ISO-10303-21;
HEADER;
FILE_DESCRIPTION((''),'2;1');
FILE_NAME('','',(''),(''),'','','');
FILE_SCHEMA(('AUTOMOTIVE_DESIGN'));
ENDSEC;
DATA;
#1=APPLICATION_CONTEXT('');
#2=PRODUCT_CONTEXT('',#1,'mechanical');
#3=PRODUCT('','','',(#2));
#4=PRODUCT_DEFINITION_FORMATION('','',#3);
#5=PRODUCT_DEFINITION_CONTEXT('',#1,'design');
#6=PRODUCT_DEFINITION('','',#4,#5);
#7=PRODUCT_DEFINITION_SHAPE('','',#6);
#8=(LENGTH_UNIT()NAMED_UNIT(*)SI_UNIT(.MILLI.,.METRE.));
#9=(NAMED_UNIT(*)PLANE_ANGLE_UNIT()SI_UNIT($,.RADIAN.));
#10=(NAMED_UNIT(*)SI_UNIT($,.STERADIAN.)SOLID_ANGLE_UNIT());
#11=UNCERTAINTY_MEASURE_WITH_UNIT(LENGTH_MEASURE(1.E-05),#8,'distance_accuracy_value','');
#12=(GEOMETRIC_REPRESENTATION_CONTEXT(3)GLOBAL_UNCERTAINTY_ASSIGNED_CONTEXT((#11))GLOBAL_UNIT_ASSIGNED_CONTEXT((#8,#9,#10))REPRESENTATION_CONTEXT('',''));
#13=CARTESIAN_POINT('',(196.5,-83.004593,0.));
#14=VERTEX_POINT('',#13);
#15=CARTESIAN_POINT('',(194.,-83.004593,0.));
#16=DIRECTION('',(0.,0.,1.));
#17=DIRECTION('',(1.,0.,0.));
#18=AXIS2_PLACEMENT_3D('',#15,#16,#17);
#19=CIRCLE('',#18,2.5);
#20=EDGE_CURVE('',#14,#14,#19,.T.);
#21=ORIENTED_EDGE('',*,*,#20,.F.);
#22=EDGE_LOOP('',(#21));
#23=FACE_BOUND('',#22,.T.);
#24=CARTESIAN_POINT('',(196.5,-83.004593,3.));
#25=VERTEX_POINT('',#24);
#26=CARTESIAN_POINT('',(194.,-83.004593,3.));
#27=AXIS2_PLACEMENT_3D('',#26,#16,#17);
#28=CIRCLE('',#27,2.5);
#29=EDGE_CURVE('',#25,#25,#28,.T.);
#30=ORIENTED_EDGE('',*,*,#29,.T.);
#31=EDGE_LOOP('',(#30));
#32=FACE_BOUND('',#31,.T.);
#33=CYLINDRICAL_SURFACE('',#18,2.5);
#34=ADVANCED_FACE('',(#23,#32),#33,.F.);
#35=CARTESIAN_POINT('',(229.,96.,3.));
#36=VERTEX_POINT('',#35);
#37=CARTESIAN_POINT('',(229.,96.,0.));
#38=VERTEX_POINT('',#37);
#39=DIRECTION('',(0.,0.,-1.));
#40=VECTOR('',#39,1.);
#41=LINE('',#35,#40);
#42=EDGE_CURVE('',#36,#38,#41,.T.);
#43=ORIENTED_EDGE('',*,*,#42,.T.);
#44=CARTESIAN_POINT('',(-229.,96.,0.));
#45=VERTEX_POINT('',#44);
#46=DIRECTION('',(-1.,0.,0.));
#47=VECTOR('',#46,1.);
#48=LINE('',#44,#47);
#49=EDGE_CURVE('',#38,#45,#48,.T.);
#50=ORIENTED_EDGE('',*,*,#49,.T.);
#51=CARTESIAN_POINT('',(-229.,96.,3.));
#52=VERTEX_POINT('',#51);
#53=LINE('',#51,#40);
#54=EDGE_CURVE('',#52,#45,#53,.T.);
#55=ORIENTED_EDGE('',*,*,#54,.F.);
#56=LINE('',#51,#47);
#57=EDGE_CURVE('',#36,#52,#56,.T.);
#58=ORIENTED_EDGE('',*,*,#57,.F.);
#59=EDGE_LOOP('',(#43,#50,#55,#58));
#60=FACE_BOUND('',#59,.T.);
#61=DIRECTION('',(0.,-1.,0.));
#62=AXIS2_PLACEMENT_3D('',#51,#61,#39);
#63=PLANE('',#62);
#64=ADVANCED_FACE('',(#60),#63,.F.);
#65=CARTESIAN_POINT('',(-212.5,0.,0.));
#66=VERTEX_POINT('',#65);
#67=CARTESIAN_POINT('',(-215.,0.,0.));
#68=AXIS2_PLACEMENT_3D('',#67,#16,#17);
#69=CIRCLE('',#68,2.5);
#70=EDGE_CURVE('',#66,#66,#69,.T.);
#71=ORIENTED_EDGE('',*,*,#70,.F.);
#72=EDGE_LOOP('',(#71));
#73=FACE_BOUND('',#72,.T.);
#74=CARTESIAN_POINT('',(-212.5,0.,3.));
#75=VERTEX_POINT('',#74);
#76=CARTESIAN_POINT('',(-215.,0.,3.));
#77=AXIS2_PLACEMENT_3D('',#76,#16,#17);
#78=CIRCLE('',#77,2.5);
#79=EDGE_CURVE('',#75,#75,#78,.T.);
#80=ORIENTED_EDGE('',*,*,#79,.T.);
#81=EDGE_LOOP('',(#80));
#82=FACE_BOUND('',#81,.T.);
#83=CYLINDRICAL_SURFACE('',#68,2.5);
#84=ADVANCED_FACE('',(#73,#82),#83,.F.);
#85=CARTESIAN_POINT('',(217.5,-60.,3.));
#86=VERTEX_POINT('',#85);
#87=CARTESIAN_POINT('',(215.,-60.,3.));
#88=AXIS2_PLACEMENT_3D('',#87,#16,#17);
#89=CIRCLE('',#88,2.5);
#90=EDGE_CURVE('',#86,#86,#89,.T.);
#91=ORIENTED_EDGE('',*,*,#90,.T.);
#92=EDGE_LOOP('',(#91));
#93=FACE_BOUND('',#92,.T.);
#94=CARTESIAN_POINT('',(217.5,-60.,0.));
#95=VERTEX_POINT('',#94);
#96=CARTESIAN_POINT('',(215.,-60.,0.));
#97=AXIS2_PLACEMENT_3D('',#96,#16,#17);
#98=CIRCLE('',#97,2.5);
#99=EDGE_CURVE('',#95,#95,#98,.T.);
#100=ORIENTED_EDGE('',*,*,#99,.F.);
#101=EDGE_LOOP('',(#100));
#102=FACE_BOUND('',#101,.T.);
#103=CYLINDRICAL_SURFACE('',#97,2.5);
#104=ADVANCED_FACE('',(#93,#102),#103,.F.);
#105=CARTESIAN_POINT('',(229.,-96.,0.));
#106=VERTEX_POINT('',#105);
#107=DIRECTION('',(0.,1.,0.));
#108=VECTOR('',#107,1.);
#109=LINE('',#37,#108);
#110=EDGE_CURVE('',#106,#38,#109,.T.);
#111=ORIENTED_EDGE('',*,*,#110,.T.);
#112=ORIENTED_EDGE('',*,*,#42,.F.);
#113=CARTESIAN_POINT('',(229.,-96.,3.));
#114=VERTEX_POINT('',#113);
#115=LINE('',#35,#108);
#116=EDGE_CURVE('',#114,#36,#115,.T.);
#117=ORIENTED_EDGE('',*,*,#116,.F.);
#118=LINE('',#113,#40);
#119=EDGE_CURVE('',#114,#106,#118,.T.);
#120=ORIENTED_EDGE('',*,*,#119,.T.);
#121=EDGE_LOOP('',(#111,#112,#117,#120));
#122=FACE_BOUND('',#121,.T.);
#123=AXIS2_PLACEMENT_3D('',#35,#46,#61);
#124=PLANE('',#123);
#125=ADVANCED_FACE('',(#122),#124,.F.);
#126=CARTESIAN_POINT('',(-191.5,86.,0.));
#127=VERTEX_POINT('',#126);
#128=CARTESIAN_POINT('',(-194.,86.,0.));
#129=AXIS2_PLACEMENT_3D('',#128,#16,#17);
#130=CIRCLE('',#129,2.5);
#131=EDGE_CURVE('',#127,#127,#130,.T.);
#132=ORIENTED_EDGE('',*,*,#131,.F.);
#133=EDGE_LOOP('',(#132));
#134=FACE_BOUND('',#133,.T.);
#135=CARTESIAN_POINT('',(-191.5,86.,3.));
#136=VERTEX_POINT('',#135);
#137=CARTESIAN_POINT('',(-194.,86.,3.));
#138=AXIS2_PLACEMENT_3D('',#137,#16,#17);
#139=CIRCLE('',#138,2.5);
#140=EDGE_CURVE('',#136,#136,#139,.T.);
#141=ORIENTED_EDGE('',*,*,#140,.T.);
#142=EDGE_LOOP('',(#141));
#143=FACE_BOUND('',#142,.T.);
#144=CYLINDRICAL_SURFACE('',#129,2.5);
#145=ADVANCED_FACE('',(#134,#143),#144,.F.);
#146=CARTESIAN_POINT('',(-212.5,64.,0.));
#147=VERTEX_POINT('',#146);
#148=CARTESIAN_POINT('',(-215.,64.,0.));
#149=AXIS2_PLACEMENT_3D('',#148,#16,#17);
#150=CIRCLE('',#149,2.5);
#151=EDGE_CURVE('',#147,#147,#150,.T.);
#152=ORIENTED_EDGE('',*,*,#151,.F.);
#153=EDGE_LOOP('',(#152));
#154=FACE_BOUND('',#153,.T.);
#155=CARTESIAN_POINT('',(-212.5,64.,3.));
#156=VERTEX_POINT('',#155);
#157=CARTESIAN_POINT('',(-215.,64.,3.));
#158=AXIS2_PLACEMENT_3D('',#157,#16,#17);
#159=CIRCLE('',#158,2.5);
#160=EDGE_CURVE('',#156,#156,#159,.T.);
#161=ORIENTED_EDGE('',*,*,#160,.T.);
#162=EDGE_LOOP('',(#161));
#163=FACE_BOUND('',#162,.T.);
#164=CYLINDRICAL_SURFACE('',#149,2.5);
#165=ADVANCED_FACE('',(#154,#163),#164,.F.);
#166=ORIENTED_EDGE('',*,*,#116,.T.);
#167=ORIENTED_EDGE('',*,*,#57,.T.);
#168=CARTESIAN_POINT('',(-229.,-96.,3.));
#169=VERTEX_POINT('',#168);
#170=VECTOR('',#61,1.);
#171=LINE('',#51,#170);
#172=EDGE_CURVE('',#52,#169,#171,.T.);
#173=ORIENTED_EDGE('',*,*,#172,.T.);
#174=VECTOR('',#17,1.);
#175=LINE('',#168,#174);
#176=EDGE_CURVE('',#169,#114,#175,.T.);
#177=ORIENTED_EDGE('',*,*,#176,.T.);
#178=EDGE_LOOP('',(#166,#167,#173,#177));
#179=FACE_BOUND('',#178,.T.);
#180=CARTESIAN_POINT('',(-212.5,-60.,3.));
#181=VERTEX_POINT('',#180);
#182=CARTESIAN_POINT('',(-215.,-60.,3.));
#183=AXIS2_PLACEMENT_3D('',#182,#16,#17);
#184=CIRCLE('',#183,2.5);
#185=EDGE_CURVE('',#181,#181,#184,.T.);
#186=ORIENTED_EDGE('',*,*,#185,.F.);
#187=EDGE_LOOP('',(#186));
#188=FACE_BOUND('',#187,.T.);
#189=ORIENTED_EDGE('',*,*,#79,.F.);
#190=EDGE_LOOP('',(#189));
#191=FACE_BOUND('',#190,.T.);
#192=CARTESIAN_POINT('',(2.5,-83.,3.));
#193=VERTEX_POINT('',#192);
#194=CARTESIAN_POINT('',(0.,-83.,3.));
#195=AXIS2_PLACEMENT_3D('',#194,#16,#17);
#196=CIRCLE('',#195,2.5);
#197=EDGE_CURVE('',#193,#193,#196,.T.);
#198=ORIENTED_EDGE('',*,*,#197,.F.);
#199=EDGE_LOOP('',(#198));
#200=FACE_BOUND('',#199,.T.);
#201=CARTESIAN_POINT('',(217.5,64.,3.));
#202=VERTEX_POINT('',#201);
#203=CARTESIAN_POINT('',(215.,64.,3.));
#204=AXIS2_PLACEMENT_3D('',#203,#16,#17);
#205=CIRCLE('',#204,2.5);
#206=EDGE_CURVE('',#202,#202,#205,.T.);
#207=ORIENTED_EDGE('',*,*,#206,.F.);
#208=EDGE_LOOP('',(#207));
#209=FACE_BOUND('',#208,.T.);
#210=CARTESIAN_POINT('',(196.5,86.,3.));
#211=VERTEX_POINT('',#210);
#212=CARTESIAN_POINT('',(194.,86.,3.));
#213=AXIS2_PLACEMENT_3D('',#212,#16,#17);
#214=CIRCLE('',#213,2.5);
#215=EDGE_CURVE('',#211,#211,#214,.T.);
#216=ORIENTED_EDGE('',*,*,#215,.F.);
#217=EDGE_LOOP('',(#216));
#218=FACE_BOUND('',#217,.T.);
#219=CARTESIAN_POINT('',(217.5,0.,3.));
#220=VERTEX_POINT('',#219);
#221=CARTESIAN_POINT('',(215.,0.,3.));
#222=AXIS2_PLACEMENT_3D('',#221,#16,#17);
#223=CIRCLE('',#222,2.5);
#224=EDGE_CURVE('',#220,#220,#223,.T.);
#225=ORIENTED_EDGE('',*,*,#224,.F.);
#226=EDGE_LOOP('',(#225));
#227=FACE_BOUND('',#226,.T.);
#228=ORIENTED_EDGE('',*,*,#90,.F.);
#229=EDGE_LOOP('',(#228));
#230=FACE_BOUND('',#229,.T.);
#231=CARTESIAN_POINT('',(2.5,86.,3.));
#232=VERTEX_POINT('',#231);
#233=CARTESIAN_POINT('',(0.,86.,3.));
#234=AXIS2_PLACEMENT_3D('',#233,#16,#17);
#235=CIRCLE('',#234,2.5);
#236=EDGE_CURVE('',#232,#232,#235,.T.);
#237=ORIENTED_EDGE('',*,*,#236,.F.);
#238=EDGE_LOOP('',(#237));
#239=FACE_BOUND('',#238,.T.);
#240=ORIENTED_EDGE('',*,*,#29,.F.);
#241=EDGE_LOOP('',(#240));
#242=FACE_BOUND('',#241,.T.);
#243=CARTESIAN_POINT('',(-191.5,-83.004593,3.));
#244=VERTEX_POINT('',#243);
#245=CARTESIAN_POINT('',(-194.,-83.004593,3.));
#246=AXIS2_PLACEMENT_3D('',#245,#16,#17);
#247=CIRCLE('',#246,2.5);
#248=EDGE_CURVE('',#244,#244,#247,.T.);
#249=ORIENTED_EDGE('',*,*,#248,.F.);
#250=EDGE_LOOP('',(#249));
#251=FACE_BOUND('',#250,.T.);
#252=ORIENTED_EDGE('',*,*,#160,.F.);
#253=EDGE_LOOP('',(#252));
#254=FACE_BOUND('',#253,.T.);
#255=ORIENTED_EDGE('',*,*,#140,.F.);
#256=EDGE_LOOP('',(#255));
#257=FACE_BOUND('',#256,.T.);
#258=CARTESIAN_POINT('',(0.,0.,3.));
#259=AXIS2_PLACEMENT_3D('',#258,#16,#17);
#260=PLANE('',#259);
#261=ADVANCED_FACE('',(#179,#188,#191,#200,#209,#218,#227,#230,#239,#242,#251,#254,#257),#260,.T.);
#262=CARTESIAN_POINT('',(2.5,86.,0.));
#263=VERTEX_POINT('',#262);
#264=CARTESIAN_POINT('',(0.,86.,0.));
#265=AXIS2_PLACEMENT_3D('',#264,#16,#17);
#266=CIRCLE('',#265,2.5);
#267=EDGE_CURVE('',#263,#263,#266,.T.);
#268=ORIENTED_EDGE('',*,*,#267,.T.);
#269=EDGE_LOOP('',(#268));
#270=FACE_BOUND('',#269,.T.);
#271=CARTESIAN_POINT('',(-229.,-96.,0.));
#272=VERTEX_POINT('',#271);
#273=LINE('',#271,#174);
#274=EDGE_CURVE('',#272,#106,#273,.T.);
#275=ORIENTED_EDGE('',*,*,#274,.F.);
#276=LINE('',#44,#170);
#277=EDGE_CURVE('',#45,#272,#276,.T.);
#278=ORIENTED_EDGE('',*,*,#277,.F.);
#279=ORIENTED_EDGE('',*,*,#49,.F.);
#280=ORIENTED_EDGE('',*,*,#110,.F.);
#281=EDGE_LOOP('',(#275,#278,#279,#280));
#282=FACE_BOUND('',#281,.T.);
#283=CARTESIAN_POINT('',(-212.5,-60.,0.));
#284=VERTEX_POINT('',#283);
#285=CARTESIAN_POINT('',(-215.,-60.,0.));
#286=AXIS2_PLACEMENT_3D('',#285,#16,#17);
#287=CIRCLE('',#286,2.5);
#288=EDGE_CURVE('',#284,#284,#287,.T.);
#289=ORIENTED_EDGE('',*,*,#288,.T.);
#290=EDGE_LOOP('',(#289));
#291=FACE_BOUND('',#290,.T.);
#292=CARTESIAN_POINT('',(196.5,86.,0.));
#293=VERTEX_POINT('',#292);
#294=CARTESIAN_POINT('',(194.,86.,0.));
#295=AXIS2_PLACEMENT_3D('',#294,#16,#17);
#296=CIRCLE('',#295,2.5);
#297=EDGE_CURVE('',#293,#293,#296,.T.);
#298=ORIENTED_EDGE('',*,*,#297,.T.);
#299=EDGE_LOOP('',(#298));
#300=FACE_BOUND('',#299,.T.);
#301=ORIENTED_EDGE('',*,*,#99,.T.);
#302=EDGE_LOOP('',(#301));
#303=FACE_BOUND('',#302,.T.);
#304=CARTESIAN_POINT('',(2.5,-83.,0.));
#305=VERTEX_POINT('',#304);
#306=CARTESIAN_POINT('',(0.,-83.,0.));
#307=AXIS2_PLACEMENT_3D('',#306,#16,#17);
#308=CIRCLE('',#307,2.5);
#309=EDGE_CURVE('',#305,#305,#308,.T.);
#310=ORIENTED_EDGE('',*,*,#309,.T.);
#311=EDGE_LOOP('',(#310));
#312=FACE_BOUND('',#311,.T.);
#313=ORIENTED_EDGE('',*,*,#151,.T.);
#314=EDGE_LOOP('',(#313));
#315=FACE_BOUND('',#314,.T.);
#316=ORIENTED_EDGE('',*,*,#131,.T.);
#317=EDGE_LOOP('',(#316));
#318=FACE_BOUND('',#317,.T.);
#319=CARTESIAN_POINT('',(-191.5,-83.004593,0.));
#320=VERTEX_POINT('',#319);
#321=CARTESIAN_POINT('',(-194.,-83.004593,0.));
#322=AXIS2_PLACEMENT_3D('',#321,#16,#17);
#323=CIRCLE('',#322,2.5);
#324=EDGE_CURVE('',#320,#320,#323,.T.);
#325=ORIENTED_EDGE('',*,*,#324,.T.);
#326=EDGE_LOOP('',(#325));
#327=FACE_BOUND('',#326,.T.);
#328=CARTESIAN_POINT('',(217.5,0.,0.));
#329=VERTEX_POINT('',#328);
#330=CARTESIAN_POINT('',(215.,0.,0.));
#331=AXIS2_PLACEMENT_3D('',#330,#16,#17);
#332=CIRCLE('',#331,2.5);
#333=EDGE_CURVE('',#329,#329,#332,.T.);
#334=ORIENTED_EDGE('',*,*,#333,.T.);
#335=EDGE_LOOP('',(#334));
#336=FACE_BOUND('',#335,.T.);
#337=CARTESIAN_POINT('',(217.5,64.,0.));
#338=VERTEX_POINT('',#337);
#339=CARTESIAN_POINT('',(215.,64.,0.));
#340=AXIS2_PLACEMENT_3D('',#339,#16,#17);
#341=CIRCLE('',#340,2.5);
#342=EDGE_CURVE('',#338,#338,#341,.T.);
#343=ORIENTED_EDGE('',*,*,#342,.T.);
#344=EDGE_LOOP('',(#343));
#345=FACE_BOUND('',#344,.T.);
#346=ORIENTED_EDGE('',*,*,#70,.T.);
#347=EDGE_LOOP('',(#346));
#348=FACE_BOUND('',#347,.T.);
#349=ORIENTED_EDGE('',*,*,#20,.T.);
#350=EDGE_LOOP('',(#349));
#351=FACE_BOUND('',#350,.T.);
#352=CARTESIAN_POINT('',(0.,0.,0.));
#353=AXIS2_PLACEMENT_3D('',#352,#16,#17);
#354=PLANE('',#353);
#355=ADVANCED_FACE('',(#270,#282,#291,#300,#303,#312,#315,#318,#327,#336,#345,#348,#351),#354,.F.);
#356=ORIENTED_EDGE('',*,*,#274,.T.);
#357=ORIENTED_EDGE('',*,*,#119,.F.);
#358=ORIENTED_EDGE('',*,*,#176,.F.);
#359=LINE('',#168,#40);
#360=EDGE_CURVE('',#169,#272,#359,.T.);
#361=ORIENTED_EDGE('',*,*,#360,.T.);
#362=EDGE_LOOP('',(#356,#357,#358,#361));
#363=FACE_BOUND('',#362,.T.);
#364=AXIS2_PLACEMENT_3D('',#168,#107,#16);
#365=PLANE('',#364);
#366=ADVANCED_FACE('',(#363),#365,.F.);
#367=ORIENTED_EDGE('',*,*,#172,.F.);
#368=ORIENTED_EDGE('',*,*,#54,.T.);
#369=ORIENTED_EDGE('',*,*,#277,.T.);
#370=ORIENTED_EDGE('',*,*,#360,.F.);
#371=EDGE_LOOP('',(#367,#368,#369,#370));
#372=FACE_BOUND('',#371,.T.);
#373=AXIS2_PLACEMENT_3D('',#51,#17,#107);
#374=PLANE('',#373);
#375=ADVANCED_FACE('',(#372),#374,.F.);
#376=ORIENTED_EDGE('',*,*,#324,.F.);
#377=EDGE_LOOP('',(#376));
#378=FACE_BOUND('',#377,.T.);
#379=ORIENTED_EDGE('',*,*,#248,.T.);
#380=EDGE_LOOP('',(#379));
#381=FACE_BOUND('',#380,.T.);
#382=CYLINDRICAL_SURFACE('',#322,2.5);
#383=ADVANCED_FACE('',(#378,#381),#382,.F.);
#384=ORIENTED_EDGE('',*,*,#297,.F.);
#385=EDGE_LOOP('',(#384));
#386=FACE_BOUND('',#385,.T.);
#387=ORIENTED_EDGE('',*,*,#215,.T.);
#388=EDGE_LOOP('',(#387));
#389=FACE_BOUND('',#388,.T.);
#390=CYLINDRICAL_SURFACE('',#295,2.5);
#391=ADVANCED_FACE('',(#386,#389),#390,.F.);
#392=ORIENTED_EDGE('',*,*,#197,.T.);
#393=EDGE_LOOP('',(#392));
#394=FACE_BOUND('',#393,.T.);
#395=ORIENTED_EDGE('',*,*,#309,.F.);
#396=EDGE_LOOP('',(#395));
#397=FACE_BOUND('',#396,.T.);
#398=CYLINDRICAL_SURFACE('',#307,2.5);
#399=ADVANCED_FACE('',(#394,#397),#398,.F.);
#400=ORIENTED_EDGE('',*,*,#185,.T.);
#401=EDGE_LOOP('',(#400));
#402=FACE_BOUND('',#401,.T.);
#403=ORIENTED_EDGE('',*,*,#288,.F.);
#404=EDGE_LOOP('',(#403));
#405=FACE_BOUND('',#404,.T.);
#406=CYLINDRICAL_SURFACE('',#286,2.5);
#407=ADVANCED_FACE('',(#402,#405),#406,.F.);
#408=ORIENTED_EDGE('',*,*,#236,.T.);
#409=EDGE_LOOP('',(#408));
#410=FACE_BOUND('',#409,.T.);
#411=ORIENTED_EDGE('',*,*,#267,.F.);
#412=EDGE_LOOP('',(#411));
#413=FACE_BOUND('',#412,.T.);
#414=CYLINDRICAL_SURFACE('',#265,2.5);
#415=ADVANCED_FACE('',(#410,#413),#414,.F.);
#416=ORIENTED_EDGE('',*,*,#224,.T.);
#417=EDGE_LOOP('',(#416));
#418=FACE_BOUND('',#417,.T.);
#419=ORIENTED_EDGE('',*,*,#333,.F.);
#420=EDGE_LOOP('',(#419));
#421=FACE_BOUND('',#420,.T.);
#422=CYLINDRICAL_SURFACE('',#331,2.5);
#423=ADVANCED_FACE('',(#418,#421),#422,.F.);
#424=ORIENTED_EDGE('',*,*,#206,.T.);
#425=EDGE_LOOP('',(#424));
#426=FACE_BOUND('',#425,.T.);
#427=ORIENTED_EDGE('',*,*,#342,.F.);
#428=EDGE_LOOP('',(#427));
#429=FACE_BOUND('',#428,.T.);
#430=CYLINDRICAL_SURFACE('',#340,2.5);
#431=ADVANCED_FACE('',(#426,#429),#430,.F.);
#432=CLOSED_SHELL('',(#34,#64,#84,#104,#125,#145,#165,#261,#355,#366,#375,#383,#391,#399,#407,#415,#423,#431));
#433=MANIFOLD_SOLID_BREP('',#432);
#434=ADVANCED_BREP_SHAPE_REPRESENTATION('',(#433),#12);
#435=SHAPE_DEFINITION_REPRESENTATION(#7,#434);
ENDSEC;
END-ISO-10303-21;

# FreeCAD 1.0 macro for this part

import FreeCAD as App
import Part
import Sketcher

V = App.Vector


def add_polygon(sketch, points):
    """Adds a closed chain of lines whose ends are joined by coincident constraints."""
    first, n = sketch.GeometryCount, len(points)
    for a, b in zip(points, points[1:] + points[:1]):
        sketch.addGeometry(Part.LineSegment(App.Vector(*a, 0), App.Vector(*b, 0)), False)
    for i in range(n):
        sketch.addConstraint(Sketcher.Constraint("Coincident", first + i, 2, first + (i + 1) % n, 1))

doc = App.newDocument("Part")
body = doc.addObject("PartDesign::Body", "Body")

# Sketch on XY plane
sketch1 = body.newObject("Sketcher::SketchObject", "Sketch")
sketch1.AttachmentSupport = (doc.getObject("XY_Plane"), [""])
sketch1.MapMode = "FlatFace"
add_polygon(sketch1, [(-229, 96), (-229, -96), (229, -96), (229, 96)])  # lines 0-3
sketch1.addConstraint([
    Sketcher.Constraint("Vertical", 0),
    Sketcher.Constraint("Horizontal", 1),
    Sketcher.Constraint("Vertical", 2),
    Sketcher.Constraint("Horizontal", 3),
    Sketcher.Constraint("Symmetric", 0, 2, 2, 2, -1, 1),
    Sketcher.Constraint("DistanceX", 1, 1, 1, 2, 458.0),
    Sketcher.Constraint("DistanceY", 0, 2, 0, 1, 192.0),
])
pad1 = body.newObject("PartDesign::Pad", "Pad")
pad1.Profile = sketch1
pad1.Length = 3

# Sketch on XY plane
sketch2 = body.newObject("Sketcher::SketchObject", "Sketch001")
sketch2.AttachmentSupport = (doc.getObject("XY_Plane"), [""])
sketch2.MapMode = "FlatFace"
sketch2.AttachmentOffset = App.Placement(V(0, 0, 3), App.Rotation())
sketch2.addGeometry([
    Part.Circle(V(-194, 86, 0), V(0, 0, 1), 2.5),  # 0
    Part.Circle(V(-194, -83, 0), V(0, 0, 1), 2.5),  # 1
    Part.Circle(V(194, -83, 0), V(0, 0, 1), 2.5),  # 2
    Part.Circle(V(194, 86, 0), V(0, 0, 1), 2.5),  # 3
    Part.Circle(V(-215, 0, 0), V(0, 0, 1), 2.5),  # 4
    Part.Circle(V(-215, -60, 0), V(0, 0, 1), 2.5),  # 5
    Part.Circle(V(-215, 64, 0), V(0, 0, 1), 2.5),  # 6
    Part.Circle(V(215, 0, 0), V(0, 0, 1), 2.5),  # 7
    Part.Circle(V(215, -60, 0), V(0, 0, 1), 2.5),  # 8
    Part.Circle(V(215, 64, 0), V(0, 0, 1), 2.5),  # 9
    Part.Circle(V(0, 86, 0), V(0, 0, 1), 2.5),  # 10
    Part.Circle(V(0, -83, 0), V(0, 0, 1), 2.5),  # 11
], False)
sketch2.addConstraint([
    Sketcher.Constraint("Equal", 0, 1),
    Sketcher.Constraint("Equal", 1, 2),
    Sketcher.Constraint("Equal", 2, 3),
    Sketcher.Constraint("Equal", 3, 4),
    Sketcher.Constraint("Equal", 4, 5),
    Sketcher.Constraint("Equal", 5, 6),
    Sketcher.Constraint("Equal", 6, 7),
    Sketcher.Constraint("Equal", 7, 8),
    Sketcher.Constraint("Equal", 8, 9),
    Sketcher.Constraint("Equal", 9, 10),
    Sketcher.Constraint("Equal", 10, 11),
    Sketcher.Constraint("Symmetric", 4, 3, 7, 3, -1, 1),
    Sketcher.Constraint("Symmetric", 1, 3, 2, 3, -2),
    Sketcher.Constraint("Symmetric", 0, 3, 3, 3, -2),
    Sketcher.Constraint("Symmetric", 5, 3, 8, 3, -2),
    Sketcher.Constraint("Symmetric", 6, 3, 9, 3, -2),
    Sketcher.Constraint("PointOnObject", 4, 3, -1),
    Sketcher.Constraint("PointOnObject", 10, 3, -2),
    Sketcher.Constraint("PointOnObject", 11, 3, -2),
    Sketcher.Constraint("Horizontal", 3, 3, 10, 3),
    Sketcher.Constraint("Vertical", 0, 3, 1, 3),
    Sketcher.Constraint("Vertical", 4, 3, 5, 3),
    Sketcher.Constraint("Vertical", 5, 3, 6, 3),
    Sketcher.Constraint("Diameter", 0, 5.0),
    Sketcher.Constraint("DistanceX", 0, 3, -1, 1, 194.0),
    Sketcher.Constraint("DistanceY", -1, 1, 0, 3, 86.0),
    Sketcher.Constraint("DistanceX", 4, 3, -1, 1, 215.0),
    Sketcher.Constraint("DistanceY", 5, 3, -1, 1, 60.0),
    Sketcher.Constraint("DistanceY", -1, 1, 6, 3, 64.0),
    Sketcher.Constraint("DistanceY", 11, 3, -1, 1, 83.0),
    Sketcher.Constraint("DistanceY", 1, 3, -1, 1, 83.004593),
])
pocket1 = body.newObject("PartDesign::Pocket", "Pocket")
pocket1.Profile = sketch2
pocket1.Type = "ThroughAll"

doc.recompute()
